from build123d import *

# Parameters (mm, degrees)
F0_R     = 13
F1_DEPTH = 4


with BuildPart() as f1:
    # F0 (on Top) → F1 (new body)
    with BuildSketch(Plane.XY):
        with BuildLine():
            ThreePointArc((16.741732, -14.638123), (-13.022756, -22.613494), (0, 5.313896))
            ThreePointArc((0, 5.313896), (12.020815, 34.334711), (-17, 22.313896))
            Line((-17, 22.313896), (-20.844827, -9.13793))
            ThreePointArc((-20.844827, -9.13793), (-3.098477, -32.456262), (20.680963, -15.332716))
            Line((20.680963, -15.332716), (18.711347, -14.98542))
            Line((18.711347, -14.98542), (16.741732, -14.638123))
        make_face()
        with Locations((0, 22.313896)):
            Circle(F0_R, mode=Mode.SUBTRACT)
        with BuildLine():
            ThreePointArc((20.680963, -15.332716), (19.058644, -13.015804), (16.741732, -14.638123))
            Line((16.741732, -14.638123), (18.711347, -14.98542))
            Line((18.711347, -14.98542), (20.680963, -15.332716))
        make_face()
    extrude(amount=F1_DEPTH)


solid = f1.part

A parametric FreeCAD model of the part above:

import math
import FreeCAD as App
import Part
import Sketcher

V = App.Vector
Q = App.Units.Quantity

doc = App.newDocument("Part")
body = doc.addObject("PartDesign::Body", "Body")

# Sketch on XY plane
sketch1 = body.newObject("Sketcher::SketchObject", "Sketch")
sketch1.AttachmentSupport = (doc.getObject("XY_Plane"), [""])
sketch1.MapMode = "FlatFace"
sketch1.addGeometry([
    Part.ArcOfCircle(Part.Circle(V(0, -11.7, 0), V(0, 0, 1), 17), math.radians(90), math.radians(350)),  # 0
    Part.ArcOfCircle(Part.Circle(V(0, 22.3, 0), V(0, 0, 1), 17), math.radians(-90), math.radians(180)),  # 1
    Part.LineSegment(V(-17, 22.3, 0), V(-20.8, -9.1, 0)),  # 2
    Part.ArcOfCircle(Part.Circle(V(0, -11.7, 0), V(0, 0, 1), 21), math.radians(173), math.radians(350)),  # 3
    Part.ArcOfCircle(Part.Circle(V(18.7, -15, 0), V(0, 0, 1), 2), math.radians(-10), math.radians(170)),  # 4
    Part.Circle(V(0, 22.3, 0), V(0, 0, 1), 13),  # 5
], False)
sketch1.addConstraint([
    Sketcher.Constraint("Tangent", 0, 1, 1, 1),
    Sketcher.Constraint("Coincident", 1, 2, 2, 1),
    Sketcher.Constraint("Tangent", 2, 2, 3, 1),
    Sketcher.Constraint("Tangent", 3, 2, 4, 1),
    Sketcher.Constraint("Tangent", 4, 2, 0, 2),
    Sketcher.Constraint("Coincident", 3, 3, 0, 3),
    Sketcher.Constraint("Coincident", 5, 3, 1, 3),
    Sketcher.Constraint("Equal", 0, 1),
    Sketcher.Constraint("PointOnObject", 0, 3, -2),
    Sketcher.Constraint("PointOnObject", 1, 3, -2),
    Sketcher.Constraint("Horizontal", 5, 3, 1, 2),
    Sketcher.Constraint("Diameter", 5, Q("26 mm")),
    Sketcher.Constraint("Radius", 0, Q("17 mm")),
    Sketcher.Constraint("Radius", 3, Q("21 mm")),
    Sketcher.Constraint("DistanceY", 4, 3, -1, 1, Q("14.98542 mm")),
    Sketcher.Constraint("DistanceY", 2, 2, -1, 1, Q("9.13793 mm")),
])
pad1 = body.newObject("PartDesign::Pad", "Pad")
pad1.Profile = sketch1
pad1.Length = 4

doc.recompute()
